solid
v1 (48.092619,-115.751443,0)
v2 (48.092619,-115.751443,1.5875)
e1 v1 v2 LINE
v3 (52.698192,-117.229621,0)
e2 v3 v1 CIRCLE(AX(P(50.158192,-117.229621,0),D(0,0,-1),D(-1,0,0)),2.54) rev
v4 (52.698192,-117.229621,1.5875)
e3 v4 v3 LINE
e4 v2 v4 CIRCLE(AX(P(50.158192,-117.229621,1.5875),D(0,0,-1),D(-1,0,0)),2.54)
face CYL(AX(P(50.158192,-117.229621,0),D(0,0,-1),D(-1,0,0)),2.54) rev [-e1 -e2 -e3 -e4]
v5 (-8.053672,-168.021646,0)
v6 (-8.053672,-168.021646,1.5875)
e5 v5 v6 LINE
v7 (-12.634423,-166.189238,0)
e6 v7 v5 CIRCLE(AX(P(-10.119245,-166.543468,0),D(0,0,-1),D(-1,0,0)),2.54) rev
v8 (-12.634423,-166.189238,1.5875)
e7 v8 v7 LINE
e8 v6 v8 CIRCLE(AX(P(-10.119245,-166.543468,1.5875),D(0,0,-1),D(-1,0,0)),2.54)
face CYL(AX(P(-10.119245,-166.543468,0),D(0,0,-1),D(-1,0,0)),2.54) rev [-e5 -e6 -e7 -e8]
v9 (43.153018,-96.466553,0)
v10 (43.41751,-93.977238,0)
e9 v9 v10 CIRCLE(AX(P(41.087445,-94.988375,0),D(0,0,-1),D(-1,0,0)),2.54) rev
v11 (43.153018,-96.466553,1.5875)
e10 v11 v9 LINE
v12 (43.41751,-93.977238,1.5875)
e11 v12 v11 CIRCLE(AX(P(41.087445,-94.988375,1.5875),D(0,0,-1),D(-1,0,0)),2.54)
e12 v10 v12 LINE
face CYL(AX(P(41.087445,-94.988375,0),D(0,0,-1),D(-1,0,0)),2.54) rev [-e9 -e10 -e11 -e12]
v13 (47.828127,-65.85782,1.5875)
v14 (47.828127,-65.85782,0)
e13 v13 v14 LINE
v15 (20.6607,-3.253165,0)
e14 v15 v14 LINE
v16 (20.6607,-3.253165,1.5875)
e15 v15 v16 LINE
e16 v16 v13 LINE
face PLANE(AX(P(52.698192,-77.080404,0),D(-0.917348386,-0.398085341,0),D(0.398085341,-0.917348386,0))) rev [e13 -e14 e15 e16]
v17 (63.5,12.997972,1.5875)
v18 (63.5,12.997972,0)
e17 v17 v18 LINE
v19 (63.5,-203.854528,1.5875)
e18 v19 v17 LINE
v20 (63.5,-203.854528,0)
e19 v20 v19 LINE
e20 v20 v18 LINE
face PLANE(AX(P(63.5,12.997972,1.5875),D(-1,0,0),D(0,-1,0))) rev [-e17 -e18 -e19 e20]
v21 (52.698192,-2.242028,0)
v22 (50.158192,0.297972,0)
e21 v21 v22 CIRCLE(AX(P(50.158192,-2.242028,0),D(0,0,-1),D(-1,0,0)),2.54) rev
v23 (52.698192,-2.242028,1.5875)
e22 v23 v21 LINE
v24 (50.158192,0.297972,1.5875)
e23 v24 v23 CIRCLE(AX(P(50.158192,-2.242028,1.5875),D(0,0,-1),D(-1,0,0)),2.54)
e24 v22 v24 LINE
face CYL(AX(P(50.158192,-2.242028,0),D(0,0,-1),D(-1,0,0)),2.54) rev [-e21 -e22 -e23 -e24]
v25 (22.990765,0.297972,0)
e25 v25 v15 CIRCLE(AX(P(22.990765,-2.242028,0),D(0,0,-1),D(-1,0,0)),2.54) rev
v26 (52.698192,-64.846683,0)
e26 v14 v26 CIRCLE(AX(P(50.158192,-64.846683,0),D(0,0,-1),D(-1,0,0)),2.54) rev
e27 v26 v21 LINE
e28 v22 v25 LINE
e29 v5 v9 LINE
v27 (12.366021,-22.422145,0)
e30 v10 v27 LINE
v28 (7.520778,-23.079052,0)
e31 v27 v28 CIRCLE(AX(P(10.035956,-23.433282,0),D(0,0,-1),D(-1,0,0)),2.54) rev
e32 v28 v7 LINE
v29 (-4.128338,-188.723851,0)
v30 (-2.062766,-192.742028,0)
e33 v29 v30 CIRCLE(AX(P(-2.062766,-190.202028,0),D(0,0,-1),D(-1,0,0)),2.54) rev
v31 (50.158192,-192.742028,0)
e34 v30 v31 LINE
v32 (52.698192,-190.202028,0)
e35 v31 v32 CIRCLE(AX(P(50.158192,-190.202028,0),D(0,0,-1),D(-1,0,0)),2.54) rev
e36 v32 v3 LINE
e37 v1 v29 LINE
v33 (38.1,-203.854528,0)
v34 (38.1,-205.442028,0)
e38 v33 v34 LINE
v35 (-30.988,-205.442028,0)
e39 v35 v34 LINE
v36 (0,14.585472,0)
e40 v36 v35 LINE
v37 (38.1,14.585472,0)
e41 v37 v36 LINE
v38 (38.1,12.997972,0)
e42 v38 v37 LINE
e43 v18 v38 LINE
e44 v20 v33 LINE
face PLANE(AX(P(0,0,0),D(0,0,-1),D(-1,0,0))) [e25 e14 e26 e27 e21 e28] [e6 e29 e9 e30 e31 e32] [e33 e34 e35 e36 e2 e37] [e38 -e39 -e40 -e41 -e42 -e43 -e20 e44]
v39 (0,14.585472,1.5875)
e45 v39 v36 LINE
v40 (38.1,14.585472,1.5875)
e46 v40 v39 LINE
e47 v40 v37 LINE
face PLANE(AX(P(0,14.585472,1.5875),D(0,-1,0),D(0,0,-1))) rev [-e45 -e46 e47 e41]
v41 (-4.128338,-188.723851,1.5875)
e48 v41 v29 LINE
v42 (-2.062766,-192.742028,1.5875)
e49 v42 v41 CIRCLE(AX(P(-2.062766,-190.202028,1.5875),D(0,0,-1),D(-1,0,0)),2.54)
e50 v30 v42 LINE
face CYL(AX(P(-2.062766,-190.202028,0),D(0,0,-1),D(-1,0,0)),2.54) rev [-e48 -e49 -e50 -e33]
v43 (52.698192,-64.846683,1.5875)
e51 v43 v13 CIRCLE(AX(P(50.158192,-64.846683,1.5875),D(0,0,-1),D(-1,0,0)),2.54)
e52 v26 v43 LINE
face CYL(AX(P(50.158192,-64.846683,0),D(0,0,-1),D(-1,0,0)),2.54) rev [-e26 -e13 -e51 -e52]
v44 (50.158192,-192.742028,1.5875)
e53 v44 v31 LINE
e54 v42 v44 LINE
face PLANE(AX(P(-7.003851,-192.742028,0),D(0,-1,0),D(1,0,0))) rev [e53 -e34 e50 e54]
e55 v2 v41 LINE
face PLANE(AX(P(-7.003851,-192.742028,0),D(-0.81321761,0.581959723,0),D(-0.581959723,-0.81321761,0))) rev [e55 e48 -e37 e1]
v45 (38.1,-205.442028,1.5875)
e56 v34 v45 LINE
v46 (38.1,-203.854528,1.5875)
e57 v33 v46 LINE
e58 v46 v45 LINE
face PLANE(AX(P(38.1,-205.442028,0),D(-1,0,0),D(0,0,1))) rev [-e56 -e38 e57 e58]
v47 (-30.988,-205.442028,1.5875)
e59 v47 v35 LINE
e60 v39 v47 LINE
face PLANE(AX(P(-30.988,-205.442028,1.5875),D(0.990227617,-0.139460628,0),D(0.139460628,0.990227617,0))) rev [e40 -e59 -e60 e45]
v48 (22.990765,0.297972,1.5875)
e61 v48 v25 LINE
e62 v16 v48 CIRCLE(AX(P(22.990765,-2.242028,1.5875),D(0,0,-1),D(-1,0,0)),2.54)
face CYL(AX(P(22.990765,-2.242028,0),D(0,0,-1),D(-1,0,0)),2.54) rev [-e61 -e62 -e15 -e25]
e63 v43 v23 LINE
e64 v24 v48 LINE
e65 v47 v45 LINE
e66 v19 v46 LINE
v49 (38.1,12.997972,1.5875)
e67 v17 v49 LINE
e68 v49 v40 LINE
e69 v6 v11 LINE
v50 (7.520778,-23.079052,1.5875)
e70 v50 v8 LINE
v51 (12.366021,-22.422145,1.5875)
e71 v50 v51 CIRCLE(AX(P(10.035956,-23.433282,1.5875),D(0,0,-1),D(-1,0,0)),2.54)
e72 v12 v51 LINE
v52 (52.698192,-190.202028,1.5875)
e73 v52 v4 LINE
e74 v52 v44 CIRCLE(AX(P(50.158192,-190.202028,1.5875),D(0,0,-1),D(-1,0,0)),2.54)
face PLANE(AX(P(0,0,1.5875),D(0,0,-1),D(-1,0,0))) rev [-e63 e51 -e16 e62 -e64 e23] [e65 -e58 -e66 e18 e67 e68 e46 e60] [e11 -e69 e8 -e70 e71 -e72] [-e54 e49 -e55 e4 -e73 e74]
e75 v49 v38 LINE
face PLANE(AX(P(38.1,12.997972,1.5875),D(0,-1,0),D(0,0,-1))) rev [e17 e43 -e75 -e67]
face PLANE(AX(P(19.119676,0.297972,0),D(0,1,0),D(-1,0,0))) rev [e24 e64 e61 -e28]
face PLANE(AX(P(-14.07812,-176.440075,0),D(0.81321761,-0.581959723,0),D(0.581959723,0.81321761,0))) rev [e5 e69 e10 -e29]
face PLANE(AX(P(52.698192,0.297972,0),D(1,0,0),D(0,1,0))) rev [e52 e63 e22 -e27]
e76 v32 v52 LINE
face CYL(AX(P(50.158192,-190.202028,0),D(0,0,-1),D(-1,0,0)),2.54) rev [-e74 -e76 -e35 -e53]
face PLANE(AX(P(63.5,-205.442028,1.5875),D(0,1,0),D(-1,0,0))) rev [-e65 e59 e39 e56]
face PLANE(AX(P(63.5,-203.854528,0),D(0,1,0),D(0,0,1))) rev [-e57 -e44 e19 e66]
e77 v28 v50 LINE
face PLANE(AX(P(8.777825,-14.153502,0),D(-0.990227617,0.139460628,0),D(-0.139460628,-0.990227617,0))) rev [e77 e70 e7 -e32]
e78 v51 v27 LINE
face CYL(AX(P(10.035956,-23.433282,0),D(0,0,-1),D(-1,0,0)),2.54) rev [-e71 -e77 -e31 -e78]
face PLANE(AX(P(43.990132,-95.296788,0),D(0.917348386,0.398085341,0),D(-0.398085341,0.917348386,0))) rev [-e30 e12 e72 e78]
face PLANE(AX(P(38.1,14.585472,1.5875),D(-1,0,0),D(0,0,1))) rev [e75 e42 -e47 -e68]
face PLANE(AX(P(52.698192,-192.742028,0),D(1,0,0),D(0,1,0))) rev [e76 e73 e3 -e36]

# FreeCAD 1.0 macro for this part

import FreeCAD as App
import Part
import Sketcher
Q = App.Units.Quantity


def edges_at(feature, points):
    """Names of the edges that pass closest to the given points."""
    edges = feature.Shape.Edges
    near = lambda p: min(range(len(edges)), key=lambda i: edges[i].distToShape(Part.Vertex(*p))[0])
    return sorted({f"Edge{near(p) + 1}" for p in points})


def add_polygon(sketch, points):
    """Adds a closed chain of lines whose ends are joined by coincident constraints."""
    first, n = sketch.GeometryCount, len(points)
    for a, b in zip(points, points[1:] + points[:1]):
        sketch.addGeometry(Part.LineSegment(App.Vector(*a, 0), App.Vector(*b, 0)), False)
    for i in range(n):
        sketch.addConstraint(Sketcher.Constraint("Coincident", first + i, 2, first + (i + 1) % n, 1))

doc = App.newDocument("Part")
body = doc.addObject("PartDesign::Body", "Body")

sketch1 = body.newObject("Sketcher::SketchObject", "Sketch")
sketch1.AttachmentSupport = (doc.getObject("XY_Plane"), [""])
sketch1.MapMode = "FlatFace"
add_polygon(sketch1, [(63.5, -205.442028), (63.5, 12.997972), (38.1, 12.997972), (38.1, 14.585472), (0, 14.585472), (-30.988, -205.442028)])
sketch1.addConstraint(Sketcher.Constraint("Vertical", 0))
sketch1.addConstraint(Sketcher.Constraint("Horizontal", 1))
sketch1.addConstraint(Sketcher.Constraint("Vertical", 2))
sketch1.addConstraint(Sketcher.Constraint("Horizontal", 3))
sketch1.addConstraint(Sketcher.Constraint("Horizontal", 5))
sketch1.addConstraint(Sketcher.Constraint("PointOnObject", 3, 2, -2))
sketch1.addConstraint(Sketcher.Constraint("DistanceX", 1, 2, 1, 1, Q("1 in")))
sketch1.addConstraint(Sketcher.Constraint("DistanceX", 3, 2, 3, 1, Q("1.5 in")))
sketch1.addConstraint(Sketcher.Constraint("DistanceY", 0, 1, 0, 2, Q("8.6 in")))
sketch1.addConstraint(Sketcher.Constraint("DistanceX", 5, 1, 5, 2, Q("3.72 in")))
sketch1.addConstraint(Sketcher.Constraint("DistanceY", 2, 1, 2, 2, Q("0.0625 in")))
sketch1.addConstraint(Sketcher.Constraint("DistanceY", -1, 1, 0, 2, Q("12.997972 mm")))
pad1 = body.newObject("PartDesign::Pad", "Pad")
pad1.Profile = sketch1
pad1.Length = Q("0.0625 in")

sketch2 = body.newObject("Sketcher::SketchObject", "Sketch001")
sketch2.AttachmentSupport = (doc.getObject("XY_Plane"), [""])
sketch2.MapMode = "FlatFace"
sketch2.AttachmentOffset = App.Placement(App.Vector(0, 0, 0.0625 * 25.4), App.Rotation())
add_polygon(sketch2, [(-14.07812, -176.440075), (43.990132, -95.296788), (8.777825, -14.153502)])
add_polygon(sketch2, [(52.698192, -109.315718), (-7.003851, -192.742028), (52.698192, -192.742028)])
add_polygon(sketch2, [(19.119676, 0.297972), (52.698192, -77.080404), (52.698192, 0.297972)])
sketch2.addConstraint(Sketcher.Constraint("Horizontal", 4))
sketch2.addConstraint(Sketcher.Constraint("Vertical", 5))
sketch2.addConstraint(Sketcher.Constraint("Vertical", 7))
sketch2.addConstraint(Sketcher.Constraint("Horizontal", 8))
sketch2.addConstraint(Sketcher.Constraint("Parallel", 0, 3))
sketch2.addConstraint(Sketcher.Constraint("Parallel", 1, 6))
sketch2.addConstraint(Sketcher.Constraint("Vertical", 5, 2, 6, 2))
sketch2.addConstraint(Sketcher.Constraint("DistanceY", 5, 1, 5, 2, Q("83.42631 mm")))
sketch2.addConstraint(Sketcher.Constraint("DistanceY", 1, 2, -1, 1, Q("14.153502 mm")))
sketch2.addConstraint(Sketcher.Constraint("Distance", 2, Q("163.888151 mm")))
sketch2.addConstraint(Sketcher.Constraint("Distance", 3, Q("102.587929 mm")))
sketch2.addConstraint(Sketcher.Constraint("DistanceX", 8, 2, 8, 1, Q("33.578516 mm")))
sketch2.addConstraint(Sketcher.Constraint("DistanceY", 7, 1, 7, 2, Q("77.378376 mm")))
sketch2.addConstraint(Sketcher.Constraint("DistanceX", -1, 1, 0, 2, Q("43.990132 mm")))
sketch2.addConstraint(Sketcher.Constraint("DistanceY", 0, 2, -1, 1, Q("95.296788 mm")))
sketch2.addConstraint(Sketcher.Constraint("DistanceX", 3, 2, -1, 1, Q("7.003851 mm")))
sketch2.addConstraint(Sketcher.Constraint("DistanceY", 3, 2, -1, 1, Q("192.742028 mm")))
sketch2.addConstraint(Sketcher.Constraint("DistanceY", -1, 1, 7, 2, Q("0.297972 mm")))
pocket1 = body.newObject("PartDesign::Pocket", "Pocket")
pocket1.Profile = sketch2
pocket1.Type = "ThroughAll"
doc.recompute()

fillet = body.newObject("PartDesign::Fillet", "Fillet")
fillet.Base = (pocket1, edges_at(pocket1, [
    (52.698, -109.316, 0.794),
    (52.698, -192.742, 0.794),
    (-7.004, -192.742, 0.794),
    (-14.078, -176.44, 0.794),
    (8.778, -14.154, 0.794),
    (43.99, -95.297, 0.794),
    (52.698, 0.298, 0.794),
    (52.698, -77.08, 0.794),
    (19.12, 0.298, 0.794),
]))
fillet.Radius = Q("0.1 in")

sketch3 = body.newObject("Sketcher::SketchObject", "Sketch002")
sketch3.AttachmentSupport = (doc.getObject("XY_Plane"), [""])
sketch3.MapMode = "FlatFace"
sketch3.AttachmentOffset = App.Placement(App.Vector(0, 0, 0.0625 * 25.4), App.Rotation())
add_polygon(sketch3, [(38.1, -203.854528), (38.1, -205.442028), (63.5, -205.442028), (63.5, -203.854528)])
sketch3.addConstraint(Sketcher.Constraint("Vertical", 0))
sketch3.addConstraint(Sketcher.Constraint("Horizontal", 1))
sketch3.addConstraint(Sketcher.Constraint("Vertical", 2))
sketch3.addConstraint(Sketcher.Constraint("Horizontal", 3))
sketch3.addConstraint(Sketcher.Constraint("DistanceX", 1, 1, 1, 2, Q("1 in")))
sketch3.addConstraint(Sketcher.Constraint("DistanceX", -1, 1, 0, 2, Q("1.5 in")))
sketch3.addConstraint(Sketcher.Constraint("DistanceY", 0, 2, 0, 1, Q("0.0625 in")))
sketch3.addConstraint(Sketcher.Constraint("DistanceY", 0, 2, -1, 1, Q("205.442028 mm")))
pocket2 = body.newObject("PartDesign::Pocket", "Pocket001")
pocket2.Profile = sketch3
pocket2.Type = "ThroughAll"

doc.recompute()
